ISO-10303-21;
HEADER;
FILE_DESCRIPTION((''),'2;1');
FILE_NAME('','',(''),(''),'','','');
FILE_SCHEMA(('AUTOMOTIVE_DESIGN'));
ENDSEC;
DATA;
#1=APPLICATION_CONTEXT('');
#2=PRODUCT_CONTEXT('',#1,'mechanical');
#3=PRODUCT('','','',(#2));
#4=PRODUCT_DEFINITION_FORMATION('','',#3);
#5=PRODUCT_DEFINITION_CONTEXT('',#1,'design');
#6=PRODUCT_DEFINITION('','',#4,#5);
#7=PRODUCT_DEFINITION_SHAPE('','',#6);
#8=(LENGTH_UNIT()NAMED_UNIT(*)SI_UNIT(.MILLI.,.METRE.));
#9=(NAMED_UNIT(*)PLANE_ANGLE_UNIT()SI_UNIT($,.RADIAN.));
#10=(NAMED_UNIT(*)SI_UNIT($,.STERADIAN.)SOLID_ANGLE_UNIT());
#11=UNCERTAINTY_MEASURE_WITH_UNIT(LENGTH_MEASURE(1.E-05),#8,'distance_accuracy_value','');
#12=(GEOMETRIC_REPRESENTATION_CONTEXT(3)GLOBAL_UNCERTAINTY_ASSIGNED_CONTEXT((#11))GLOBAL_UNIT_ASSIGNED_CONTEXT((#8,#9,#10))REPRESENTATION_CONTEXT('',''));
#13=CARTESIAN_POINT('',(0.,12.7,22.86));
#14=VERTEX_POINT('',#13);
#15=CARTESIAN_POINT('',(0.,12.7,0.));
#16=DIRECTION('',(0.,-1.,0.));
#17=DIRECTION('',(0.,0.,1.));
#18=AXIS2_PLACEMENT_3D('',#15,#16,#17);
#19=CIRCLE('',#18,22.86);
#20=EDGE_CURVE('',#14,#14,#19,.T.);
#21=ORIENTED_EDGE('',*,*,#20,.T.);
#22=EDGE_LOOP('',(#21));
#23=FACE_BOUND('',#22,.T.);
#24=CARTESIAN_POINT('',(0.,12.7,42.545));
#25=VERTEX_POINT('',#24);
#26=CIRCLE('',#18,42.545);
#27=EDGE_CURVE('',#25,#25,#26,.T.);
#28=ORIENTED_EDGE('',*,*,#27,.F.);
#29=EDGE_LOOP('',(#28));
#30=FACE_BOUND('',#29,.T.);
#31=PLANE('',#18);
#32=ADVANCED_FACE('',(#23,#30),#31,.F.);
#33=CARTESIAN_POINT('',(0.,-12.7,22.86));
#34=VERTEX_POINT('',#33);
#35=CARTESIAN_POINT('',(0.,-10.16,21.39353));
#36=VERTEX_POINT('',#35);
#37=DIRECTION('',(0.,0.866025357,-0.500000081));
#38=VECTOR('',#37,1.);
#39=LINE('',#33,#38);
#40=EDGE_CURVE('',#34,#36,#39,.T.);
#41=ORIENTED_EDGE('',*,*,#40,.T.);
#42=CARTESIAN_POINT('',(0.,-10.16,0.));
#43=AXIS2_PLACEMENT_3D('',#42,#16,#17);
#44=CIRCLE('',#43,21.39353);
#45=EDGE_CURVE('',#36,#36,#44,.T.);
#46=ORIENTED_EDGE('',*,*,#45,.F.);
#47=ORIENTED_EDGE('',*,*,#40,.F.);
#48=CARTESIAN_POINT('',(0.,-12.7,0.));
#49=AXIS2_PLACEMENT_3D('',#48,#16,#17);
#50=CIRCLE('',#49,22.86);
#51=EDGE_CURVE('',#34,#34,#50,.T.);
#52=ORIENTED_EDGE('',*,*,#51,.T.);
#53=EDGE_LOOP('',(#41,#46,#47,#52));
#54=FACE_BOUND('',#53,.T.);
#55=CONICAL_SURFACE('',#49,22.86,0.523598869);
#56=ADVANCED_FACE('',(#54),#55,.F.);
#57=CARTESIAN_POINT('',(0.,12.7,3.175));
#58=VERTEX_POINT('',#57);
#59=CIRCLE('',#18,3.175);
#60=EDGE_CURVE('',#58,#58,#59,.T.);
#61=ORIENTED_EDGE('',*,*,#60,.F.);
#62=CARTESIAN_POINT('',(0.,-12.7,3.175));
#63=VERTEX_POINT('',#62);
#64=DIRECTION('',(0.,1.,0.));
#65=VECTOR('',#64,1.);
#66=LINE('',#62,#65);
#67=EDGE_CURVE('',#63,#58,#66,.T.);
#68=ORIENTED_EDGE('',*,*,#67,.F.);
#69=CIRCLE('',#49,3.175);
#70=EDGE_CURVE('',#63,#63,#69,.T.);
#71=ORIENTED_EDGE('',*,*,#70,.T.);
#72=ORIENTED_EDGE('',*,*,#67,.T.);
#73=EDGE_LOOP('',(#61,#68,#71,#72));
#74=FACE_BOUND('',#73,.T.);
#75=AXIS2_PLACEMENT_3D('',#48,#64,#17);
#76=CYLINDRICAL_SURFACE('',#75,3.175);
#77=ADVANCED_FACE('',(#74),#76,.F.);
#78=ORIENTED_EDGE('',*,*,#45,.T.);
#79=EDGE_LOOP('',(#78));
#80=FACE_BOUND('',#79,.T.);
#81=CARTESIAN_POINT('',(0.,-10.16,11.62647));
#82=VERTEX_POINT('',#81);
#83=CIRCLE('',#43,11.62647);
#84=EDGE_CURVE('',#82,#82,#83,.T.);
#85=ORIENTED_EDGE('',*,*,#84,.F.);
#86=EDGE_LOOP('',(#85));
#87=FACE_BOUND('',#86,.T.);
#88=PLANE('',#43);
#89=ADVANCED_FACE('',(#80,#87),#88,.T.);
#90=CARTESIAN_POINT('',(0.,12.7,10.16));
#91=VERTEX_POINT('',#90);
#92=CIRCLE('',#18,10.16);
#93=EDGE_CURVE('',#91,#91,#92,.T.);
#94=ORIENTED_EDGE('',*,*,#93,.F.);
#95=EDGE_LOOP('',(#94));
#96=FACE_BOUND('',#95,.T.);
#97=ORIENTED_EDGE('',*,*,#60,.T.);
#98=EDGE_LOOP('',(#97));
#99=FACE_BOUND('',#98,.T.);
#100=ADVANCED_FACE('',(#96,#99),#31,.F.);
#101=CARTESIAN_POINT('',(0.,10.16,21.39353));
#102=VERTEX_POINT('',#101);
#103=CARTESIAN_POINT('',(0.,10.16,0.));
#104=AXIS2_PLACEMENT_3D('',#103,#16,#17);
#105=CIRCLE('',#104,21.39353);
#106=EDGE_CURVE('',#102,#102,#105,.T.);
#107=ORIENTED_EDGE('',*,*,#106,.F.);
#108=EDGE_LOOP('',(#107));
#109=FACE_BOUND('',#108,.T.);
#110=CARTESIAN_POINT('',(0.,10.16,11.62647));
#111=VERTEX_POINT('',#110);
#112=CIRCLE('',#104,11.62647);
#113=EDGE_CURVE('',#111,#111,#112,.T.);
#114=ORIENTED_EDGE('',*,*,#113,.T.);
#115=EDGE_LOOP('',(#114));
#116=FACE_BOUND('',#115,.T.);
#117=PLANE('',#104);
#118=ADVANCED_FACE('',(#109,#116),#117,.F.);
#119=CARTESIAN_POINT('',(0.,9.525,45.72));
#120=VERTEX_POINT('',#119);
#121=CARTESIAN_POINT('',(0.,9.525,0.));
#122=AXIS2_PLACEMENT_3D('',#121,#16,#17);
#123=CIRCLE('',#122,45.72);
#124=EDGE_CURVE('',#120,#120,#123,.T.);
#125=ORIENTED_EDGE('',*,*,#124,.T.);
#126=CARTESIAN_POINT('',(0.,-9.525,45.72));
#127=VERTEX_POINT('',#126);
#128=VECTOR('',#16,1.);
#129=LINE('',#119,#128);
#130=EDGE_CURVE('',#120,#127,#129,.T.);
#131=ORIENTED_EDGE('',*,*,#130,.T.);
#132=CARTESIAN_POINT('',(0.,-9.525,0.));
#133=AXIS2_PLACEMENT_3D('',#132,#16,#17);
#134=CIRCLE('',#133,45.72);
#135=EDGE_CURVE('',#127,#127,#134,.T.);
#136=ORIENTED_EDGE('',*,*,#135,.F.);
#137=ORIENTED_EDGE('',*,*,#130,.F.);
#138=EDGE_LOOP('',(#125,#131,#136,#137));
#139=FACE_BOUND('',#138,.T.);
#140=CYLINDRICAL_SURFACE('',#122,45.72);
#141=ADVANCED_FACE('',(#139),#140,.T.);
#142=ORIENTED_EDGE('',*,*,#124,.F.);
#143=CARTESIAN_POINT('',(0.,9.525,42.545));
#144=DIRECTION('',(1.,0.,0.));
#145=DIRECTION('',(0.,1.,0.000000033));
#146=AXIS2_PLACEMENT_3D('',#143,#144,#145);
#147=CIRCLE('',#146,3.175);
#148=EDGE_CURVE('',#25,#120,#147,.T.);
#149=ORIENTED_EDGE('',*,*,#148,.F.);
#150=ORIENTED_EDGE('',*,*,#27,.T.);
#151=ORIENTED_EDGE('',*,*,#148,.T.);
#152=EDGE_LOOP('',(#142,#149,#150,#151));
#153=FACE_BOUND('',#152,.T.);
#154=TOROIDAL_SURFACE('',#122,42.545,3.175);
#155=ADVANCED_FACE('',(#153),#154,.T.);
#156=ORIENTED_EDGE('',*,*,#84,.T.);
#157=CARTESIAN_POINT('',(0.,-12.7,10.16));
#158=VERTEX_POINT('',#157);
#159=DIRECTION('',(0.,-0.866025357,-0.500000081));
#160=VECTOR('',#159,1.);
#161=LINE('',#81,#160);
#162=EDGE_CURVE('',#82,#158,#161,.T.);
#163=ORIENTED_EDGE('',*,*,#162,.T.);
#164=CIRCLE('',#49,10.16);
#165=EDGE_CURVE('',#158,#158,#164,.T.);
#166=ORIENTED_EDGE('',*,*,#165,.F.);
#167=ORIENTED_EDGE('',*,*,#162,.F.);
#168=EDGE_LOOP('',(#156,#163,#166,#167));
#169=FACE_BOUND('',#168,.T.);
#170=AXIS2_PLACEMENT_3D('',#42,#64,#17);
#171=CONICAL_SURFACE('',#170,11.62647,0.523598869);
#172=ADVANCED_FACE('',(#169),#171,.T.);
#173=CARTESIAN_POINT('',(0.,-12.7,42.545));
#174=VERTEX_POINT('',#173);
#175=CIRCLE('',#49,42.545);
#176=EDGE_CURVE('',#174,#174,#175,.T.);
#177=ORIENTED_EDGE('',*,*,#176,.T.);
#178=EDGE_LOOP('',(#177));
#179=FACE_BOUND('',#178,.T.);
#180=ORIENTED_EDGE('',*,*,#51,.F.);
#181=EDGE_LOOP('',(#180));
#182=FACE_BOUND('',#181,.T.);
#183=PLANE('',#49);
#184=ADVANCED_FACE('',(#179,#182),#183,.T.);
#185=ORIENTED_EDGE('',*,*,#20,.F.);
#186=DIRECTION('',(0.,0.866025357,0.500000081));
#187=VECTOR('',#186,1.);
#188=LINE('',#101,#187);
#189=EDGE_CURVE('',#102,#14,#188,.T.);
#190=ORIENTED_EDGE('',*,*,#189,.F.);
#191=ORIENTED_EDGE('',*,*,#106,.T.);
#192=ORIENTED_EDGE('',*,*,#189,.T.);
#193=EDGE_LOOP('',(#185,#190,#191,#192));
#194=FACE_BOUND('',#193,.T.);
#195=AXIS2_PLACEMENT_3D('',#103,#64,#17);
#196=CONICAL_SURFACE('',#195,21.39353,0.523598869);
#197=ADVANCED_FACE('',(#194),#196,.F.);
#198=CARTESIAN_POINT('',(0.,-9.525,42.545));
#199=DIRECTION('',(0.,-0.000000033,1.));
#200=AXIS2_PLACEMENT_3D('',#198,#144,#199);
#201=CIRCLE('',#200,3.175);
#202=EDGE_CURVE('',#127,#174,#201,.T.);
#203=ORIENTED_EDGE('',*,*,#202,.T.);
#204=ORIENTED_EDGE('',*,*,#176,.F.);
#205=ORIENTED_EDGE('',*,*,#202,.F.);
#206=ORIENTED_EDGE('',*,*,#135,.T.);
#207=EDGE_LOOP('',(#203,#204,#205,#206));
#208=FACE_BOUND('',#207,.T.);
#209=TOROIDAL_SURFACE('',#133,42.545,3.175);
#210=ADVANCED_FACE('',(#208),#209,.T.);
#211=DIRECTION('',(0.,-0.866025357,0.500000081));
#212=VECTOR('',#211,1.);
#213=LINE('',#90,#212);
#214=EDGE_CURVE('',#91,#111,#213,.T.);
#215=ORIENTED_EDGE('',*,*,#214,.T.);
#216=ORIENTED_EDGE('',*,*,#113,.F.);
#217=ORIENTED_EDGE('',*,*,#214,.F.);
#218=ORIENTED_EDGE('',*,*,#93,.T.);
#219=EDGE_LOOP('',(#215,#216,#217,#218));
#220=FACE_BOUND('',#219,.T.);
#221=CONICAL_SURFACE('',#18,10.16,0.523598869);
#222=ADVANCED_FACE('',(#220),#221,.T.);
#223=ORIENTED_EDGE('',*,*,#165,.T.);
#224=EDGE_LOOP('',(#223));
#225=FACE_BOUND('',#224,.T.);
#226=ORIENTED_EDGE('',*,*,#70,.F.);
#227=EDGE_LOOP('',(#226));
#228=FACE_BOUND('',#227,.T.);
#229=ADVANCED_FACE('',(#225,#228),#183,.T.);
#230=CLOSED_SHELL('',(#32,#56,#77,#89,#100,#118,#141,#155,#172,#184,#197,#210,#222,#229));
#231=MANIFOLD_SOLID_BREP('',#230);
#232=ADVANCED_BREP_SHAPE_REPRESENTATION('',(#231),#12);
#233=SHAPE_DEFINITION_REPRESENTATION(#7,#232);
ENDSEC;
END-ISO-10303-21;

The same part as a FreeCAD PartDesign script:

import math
import FreeCAD as App
import Part
import Sketcher
from FreeCAD import Vector
Q = App.Units.Quantity

doc = App.newDocument("Part")
params = doc.addObject("Spreadsheet::Sheet", "Params")
for row, (alias, value) in enumerate([
    ("sketch1_width", "1 in"),
    ("sketch1_radius", "0.125 in"),
    ("sketch1_height", "0.275 in"),
    ("revolution_angle", "360 deg"),
], start=1):
    params.set(f"A{row}", alias)
    params.set(f"B{row}", "=" + value)
    params.setAlias(f"B{row}", alias)

body = doc.addObject("PartDesign::Body", "Body")

# Sketch on YZ plane
sketch1 = body.newObject("Sketcher::SketchObject", "Sketch")
sketch1.AttachmentSupport = (doc.getObject("YZ_Plane"), [""])
sketch1.MapMode = "FlatFace"
sketch1.addGeometry(Part.LineSegment(Vector(-12.7, 3.175, 0), Vector(12.7, 3.175, 0)), False)
sketch1.addGeometry(Part.LineSegment(Vector(12.7, 3.175, 0), Vector(12.7, 10.16, 0)), False)
sketch1.addGeometry(Part.LineSegment(Vector(12.7, 10.16, 0), Vector(10.16, 11.62647, 0)), False)
sketch1.addGeometry(Part.LineSegment(Vector(10.16, 11.62647, 0), Vector(10.16, 21.39353, 0)), False)
sketch1.addGeometry(Part.LineSegment(Vector(10.16, 21.39353, 0), Vector(12.7, 22.86, 0)), False)
sketch1.addGeometry(Part.LineSegment(Vector(12.7, 22.86, 0), Vector(12.7, 42.545, 0)), False)
sketch1.addGeometry(Part.ArcOfCircle(Part.Circle(Vector(9.525, 42.545, 0), Vector(0, 0, 1), 3.175), math.radians(0.000002), math.radians(89.999998)), False)
sketch1.addGeometry(Part.LineSegment(Vector(9.525, 45.72, 0), Vector(-9.525, 45.72, 0)), False)
sketch1.addGeometry(Part.ArcOfCircle(Part.Circle(Vector(-9.525, 42.545, 0), Vector(0, 0, 1), 3.175), math.radians(90.000002), math.radians(179.999998)), False)
sketch1.addGeometry(Part.LineSegment(Vector(-12.7, 42.545, 0), Vector(-12.7, 22.86, 0)), False)
sketch1.addGeometry(Part.LineSegment(Vector(-12.7, 22.86, 0), Vector(-10.16, 21.39353, 0)), False)
sketch1.addGeometry(Part.LineSegment(Vector(-10.16, 21.39353, 0), Vector(-10.16, 11.62647, 0)), False)
sketch1.addGeometry(Part.LineSegment(Vector(-10.16, 11.62647, 0), Vector(-12.7, 10.16, 0)), False)
sketch1.addGeometry(Part.LineSegment(Vector(-12.7, 10.16, 0), Vector(-12.7, 3.175, 0)), False)
sketch1.addConstraint(Sketcher.Constraint("Coincident", 0, 2, 1, 1))
sketch1.addConstraint(Sketcher.Constraint("Coincident", 1, 2, 2, 1))
sketch1.addConstraint(Sketcher.Constraint("Coincident", 2, 2, 3, 1))
sketch1.addConstraint(Sketcher.Constraint("Coincident", 3, 2, 4, 1))
sketch1.addConstraint(Sketcher.Constraint("Coincident", 4, 2, 5, 1))
sketch1.addConstraint(Sketcher.Constraint("Tangent", 5, 2, 6, 1))
sketch1.addConstraint(Sketcher.Constraint("Tangent", 6, 2, 7, 1))
sketch1.addConstraint(Sketcher.Constraint("Tangent", 7, 2, 8, 1))
sketch1.addConstraint(Sketcher.Constraint("Tangent", 8, 2, 9, 1))
sketch1.addConstraint(Sketcher.Constraint("Coincident", 9, 2, 10, 1))
sketch1.addConstraint(Sketcher.Constraint("Coincident", 10, 2, 11, 1))
sketch1.addConstraint(Sketcher.Constraint("Coincident", 11, 2, 12, 1))
sketch1.addConstraint(Sketcher.Constraint("Coincident", 12, 2, 13, 1))
sketch1.addConstraint(Sketcher.Constraint("Coincident", 13, 2, 0, 1))
sketch1.addConstraint(Sketcher.Constraint("Horizontal", 0))
sketch1.addConstraint(Sketcher.Constraint("Vertical", 1))
sketch1.addConstraint(Sketcher.Constraint("Vertical", 3))
sketch1.addConstraint(Sketcher.Constraint("Vertical", 5))
sketch1.addConstraint(Sketcher.Constraint("Horizontal", 7))
sketch1.addConstraint(Sketcher.Constraint("Vertical", 9))
sketch1.addConstraint(Sketcher.Constraint("Vertical", 11))
sketch1.addConstraint(Sketcher.Constraint("Vertical", 13))
sketch1.addConstraint(Sketcher.Constraint("Equal", 6, 8))
sketch1.addConstraint(Sketcher.Constraint("Symmetric", 4, 2, 9, 2, -2))
sketch1.addConstraint(Sketcher.Constraint("Symmetric", 3, 2, 10, 2, -2))
sketch1.addConstraint(Sketcher.Constraint("Symmetric", 1, 2, 12, 2, -2))
sketch1.addConstraint(Sketcher.Constraint("Parallel", 2, 10))
sketch1.addConstraint(Sketcher.Constraint("Parallel", 4, 12))
sketch1.addConstraint(Sketcher.Constraint("Vertical", 1, 2, 4, 2))
sketch1.addConstraint(Sketcher.Constraint("DistanceX", 0, 1, 0, 2, Q("1 in")))
sketch1.addConstraint(Sketcher.Constraint("Angle", 2, Q("149.999995 deg")))
sketch1.addConstraint(Sketcher.Constraint("Radius", 6, Q("0.125 in")))
sketch1.addConstraint(Sketcher.Constraint("DistanceY", -1, 1, 1, 2, Q("0.4 in")))
sketch1.addConstraint(Sketcher.Constraint("DistanceX", -1, 1, 2, 2, Q("0.4 in")))
sketch1.addConstraint(Sketcher.Constraint("DistanceY", -1, 1, 4, 2, Q("0.9 in")))
sketch1.addConstraint(Sketcher.Constraint("DistanceY", -1, 1, 6, 2, Q("1.8 in")))
sketch1.addConstraint(Sketcher.Constraint("DistanceY", 1, 1, 1, 2, Q("0.275 in")))
sketch1.setExpression("Constraints[29]", "Params.sketch1_width")
sketch1.setExpression("Constraints[31]", "Params.sketch1_radius")
sketch1.setExpression("Constraints[36]", "Params.sketch1_height")
revolution = body.newObject("PartDesign::Revolution", "Revolution")
revolution.Profile = sketch1
revolution.ReferenceAxis = (sketch1, ["H_Axis"])
revolution.setExpression("Angle", "Params.revolution_angle")

doc.recompute()
